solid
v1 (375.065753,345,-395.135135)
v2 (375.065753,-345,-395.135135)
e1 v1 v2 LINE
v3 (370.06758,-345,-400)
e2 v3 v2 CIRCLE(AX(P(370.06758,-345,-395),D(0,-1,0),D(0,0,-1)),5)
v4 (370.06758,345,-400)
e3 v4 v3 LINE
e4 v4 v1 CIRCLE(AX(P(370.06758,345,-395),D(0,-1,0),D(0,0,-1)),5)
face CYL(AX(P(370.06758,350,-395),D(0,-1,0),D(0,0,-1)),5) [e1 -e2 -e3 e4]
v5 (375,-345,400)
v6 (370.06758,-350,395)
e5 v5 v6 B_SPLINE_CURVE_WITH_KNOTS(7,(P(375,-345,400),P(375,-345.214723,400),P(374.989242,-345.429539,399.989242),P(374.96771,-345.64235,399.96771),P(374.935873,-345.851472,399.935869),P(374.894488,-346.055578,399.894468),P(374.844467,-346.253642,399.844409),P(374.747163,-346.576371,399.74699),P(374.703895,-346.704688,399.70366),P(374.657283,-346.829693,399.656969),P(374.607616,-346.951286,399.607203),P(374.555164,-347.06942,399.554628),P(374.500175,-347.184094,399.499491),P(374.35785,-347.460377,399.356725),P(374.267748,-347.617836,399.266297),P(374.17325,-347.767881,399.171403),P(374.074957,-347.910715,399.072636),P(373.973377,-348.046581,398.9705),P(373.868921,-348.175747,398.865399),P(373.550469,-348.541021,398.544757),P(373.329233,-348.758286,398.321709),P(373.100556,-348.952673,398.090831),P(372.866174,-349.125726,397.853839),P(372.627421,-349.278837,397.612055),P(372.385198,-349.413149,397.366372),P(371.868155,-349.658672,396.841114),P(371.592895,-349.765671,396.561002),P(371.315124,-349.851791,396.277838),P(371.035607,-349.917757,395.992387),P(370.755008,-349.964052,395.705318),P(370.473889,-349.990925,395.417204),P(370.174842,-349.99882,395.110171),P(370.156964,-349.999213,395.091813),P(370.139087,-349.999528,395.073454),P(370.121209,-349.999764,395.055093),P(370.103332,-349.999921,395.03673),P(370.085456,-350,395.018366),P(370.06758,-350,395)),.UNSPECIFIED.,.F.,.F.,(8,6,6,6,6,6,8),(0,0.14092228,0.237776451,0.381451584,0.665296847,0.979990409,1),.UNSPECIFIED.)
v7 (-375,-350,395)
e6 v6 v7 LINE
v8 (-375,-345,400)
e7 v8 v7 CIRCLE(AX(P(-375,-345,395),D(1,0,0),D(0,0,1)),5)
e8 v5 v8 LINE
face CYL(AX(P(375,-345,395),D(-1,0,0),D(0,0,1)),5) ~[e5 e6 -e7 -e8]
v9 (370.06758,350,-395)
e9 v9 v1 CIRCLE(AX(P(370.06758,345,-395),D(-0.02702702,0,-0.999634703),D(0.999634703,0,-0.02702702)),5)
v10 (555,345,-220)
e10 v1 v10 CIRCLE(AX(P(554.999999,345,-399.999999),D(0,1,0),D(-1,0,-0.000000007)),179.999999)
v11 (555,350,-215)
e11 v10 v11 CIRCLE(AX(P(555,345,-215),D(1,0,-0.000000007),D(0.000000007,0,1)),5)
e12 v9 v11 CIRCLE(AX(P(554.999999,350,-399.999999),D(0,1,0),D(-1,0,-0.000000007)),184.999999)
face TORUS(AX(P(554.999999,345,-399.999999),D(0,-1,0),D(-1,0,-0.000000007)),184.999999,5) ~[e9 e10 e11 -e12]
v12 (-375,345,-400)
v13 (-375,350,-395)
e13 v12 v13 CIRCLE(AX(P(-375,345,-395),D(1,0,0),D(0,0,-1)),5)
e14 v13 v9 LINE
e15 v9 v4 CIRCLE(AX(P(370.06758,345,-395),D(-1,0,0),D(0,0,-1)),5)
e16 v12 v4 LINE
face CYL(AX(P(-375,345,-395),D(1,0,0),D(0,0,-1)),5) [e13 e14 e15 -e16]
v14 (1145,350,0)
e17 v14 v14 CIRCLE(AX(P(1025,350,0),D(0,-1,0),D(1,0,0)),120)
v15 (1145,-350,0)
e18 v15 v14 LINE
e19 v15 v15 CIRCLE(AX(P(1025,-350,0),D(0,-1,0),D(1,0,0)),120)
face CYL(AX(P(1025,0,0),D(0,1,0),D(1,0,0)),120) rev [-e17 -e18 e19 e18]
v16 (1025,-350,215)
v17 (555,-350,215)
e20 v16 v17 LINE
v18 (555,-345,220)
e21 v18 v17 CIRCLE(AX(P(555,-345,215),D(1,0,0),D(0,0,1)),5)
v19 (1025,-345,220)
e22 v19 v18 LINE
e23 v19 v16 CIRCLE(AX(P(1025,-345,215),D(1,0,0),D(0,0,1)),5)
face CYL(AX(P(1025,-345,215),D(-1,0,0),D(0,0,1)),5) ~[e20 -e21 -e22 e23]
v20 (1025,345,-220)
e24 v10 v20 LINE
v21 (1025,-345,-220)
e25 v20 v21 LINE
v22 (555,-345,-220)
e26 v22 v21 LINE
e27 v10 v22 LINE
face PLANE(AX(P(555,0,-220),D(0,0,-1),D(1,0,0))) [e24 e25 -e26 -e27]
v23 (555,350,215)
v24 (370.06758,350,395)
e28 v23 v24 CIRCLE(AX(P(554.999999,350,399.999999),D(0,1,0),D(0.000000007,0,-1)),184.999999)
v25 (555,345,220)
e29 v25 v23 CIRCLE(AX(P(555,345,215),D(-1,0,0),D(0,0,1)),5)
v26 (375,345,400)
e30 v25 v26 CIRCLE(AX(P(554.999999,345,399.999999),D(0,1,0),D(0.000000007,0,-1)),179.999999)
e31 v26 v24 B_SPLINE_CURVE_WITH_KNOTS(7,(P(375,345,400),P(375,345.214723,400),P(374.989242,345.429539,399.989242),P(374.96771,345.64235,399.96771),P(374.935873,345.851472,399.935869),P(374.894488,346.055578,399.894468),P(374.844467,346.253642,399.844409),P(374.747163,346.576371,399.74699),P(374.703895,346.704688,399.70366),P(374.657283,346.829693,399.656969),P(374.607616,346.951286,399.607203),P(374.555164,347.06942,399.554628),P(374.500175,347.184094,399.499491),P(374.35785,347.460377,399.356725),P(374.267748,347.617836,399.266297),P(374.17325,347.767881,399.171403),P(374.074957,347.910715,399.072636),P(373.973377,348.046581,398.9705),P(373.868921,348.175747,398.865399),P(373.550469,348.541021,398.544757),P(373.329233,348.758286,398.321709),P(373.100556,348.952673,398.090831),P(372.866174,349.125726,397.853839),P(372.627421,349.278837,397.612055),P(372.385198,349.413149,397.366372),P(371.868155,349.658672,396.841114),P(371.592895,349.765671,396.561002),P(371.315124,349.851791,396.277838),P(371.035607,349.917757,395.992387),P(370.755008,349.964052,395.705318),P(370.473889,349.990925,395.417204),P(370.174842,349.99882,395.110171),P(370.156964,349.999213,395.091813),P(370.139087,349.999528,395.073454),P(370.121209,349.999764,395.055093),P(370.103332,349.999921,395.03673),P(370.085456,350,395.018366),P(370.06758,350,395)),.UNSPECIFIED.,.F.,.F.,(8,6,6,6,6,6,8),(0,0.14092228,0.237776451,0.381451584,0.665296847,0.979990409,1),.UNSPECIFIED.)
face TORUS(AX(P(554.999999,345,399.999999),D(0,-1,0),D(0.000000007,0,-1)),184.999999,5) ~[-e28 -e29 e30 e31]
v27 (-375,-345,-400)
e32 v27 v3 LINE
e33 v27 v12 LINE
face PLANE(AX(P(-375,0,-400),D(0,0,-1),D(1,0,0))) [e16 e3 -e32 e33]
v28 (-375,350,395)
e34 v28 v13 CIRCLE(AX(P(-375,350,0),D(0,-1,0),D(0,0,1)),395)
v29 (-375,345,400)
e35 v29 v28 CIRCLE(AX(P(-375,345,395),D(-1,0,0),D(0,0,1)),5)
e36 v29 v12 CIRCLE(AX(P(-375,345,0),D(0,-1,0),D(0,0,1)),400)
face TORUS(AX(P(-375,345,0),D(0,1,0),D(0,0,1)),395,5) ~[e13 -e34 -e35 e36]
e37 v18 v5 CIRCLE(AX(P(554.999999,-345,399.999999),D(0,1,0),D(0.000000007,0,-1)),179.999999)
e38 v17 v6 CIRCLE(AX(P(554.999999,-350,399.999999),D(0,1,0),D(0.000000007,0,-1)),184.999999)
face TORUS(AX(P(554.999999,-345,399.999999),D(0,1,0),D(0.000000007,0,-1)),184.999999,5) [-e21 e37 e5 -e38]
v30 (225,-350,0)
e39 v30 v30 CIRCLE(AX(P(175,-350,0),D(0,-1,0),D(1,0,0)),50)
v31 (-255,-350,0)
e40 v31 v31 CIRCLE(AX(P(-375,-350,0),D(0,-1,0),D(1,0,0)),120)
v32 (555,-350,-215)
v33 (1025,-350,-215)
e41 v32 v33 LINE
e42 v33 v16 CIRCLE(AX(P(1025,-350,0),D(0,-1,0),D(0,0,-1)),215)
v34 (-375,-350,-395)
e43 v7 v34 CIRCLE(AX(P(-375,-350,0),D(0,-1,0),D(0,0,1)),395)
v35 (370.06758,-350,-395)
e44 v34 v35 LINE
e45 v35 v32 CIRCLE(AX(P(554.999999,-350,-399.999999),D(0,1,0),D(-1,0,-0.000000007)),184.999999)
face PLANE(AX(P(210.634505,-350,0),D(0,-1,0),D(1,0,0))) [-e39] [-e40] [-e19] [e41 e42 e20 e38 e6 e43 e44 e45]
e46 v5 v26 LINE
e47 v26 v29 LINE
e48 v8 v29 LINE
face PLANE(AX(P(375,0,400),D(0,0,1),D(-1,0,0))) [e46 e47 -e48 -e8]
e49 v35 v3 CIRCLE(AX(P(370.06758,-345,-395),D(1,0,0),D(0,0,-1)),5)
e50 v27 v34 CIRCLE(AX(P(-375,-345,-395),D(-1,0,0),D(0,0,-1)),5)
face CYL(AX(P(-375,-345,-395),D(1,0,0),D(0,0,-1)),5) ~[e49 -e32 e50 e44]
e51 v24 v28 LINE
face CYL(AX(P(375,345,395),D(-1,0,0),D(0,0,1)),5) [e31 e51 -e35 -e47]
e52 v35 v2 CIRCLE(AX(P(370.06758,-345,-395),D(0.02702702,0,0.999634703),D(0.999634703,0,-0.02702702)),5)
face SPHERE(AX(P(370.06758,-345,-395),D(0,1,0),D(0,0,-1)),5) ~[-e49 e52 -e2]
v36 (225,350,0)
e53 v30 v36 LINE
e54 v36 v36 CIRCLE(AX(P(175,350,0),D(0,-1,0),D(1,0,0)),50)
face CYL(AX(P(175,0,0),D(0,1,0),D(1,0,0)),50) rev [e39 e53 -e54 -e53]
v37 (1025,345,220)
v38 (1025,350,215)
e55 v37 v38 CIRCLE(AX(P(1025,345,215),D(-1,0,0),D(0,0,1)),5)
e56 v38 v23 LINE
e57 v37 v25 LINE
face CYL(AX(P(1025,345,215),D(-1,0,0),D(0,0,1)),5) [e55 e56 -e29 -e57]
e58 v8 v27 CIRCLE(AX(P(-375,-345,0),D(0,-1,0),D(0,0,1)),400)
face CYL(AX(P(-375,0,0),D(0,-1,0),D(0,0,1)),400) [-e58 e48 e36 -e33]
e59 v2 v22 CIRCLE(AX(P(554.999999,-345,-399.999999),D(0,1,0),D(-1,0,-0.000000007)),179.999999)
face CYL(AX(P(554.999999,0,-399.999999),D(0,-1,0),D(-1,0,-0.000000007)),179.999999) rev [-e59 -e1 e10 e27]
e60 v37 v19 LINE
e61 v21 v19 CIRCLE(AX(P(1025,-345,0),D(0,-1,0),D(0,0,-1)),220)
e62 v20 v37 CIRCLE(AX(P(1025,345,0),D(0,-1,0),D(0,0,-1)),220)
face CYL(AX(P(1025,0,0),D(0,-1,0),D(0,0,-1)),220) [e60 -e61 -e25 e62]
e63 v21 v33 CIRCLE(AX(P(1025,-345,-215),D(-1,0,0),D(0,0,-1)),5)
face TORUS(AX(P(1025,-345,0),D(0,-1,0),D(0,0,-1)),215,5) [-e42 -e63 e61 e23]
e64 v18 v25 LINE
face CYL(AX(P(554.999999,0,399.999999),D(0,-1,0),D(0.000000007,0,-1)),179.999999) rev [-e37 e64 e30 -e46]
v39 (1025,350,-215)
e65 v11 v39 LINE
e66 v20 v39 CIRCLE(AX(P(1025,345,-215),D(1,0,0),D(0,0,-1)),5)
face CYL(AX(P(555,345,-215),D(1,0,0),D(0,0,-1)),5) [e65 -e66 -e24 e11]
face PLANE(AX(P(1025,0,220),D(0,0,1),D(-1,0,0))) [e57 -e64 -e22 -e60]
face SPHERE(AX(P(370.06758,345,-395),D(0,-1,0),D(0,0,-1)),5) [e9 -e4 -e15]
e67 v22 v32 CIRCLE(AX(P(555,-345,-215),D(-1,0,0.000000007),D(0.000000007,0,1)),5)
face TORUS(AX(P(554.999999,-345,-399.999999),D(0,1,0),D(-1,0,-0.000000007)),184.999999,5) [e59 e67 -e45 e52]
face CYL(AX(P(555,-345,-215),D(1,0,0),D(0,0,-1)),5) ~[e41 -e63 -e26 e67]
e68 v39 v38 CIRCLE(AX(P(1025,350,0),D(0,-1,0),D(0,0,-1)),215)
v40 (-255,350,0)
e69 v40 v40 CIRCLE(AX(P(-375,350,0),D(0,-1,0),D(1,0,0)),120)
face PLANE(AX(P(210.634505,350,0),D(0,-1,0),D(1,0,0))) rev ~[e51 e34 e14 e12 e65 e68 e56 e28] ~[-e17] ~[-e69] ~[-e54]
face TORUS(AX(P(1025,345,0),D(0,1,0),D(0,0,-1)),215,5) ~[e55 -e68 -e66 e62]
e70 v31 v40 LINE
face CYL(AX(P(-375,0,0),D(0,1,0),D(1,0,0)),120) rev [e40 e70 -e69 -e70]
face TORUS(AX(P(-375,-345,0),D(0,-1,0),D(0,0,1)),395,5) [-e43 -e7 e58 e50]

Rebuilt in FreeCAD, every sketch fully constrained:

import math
import FreeCAD as App
import Part
import Sketcher

V = App.Vector
Q = App.Units.Quantity


def edges_at(feature, points):
    """Names of the edges that pass closest to the given points."""
    edges = feature.Shape.Edges
    near = lambda p: min(range(len(edges)), key=lambda i: edges[i].distToShape(Part.Vertex(*p))[0])
    return sorted({f"Edge{near(p) + 1}" for p in points})

doc = App.newDocument("Part")
body = doc.addObject("PartDesign::Body", "Body")

sketch1 = doc.addObject("Sketcher::SketchObject", "Sketch")
body.addObject(sketch1)
sketch1.AttachmentSupport = (doc.XZ_Plane, [""])
sketch1.MapMode = "FlatFace"
sketch1.addGeometry([
    Part.LineSegment(V(-375, -400, 0), V(375, -400, 0)),
    Part.ArcOfCircle(Part.Circle(V(555, -400, 0), V(0, 0, 1), 180), math.radians(90), math.radians(180)),
    Part.LineSegment(V(555, -220, 0), V(1025, -220, 0)),
    Part.ArcOfCircle(Part.Circle(V(1025, 0, 0), V(0, 0, 1), 220), math.radians(-90), math.radians(90)),
    Part.LineSegment(V(1025, 220, 0), V(555, 220, 0)),
    Part.ArcOfCircle(Part.Circle(V(555, 400, 0), V(0, 0, 1), 180), math.radians(180), math.radians(270)),
    Part.LineSegment(V(375, 400, 0), V(-375, 400, 0)),
    Part.ArcOfCircle(Part.Circle(V(-375, 0, 0), V(0, 0, 1), 400), math.radians(90), math.radians(270)),
    Part.Circle(V(-375, 0, 0), V(0, 0, 1), 120),
    Part.Circle(V(175, 0, 0), V(0, 0, 1), 50),
    Part.Circle(V(1025, 0, 0), V(0, 0, 1), 120),
], False)
sketch1.addConstraint([
    Sketcher.Constraint("Coincident", 0, 2, 1, 2),
    Sketcher.Constraint("Tangent", 1, 1, 2, 1),
    Sketcher.Constraint("Tangent", 2, 2, 3, 1),
    Sketcher.Constraint("Tangent", 3, 2, 4, 1),
    Sketcher.Constraint("Tangent", 4, 2, 5, 2),
    Sketcher.Constraint("Coincident", 5, 1, 6, 1),
    Sketcher.Constraint("Tangent", 6, 2, 7, 1),
    Sketcher.Constraint("Tangent", 7, 2, 0, 1),
    Sketcher.Constraint("Horizontal", 0),
    Sketcher.Constraint("Horizontal", 2),
    Sketcher.Constraint("Horizontal", 4),
    Sketcher.Constraint("Horizontal", 6),
    Sketcher.Constraint("Coincident", 8, 3, 7, 3),
    Sketcher.Constraint("Coincident", 10, 3, 3, 3),
    Sketcher.Constraint("Equal", 1, 5),
    Sketcher.Constraint("Equal", 8, 10),
    Sketcher.Constraint("Symmetric", 0, 2, 6, 2, -1, 1),
    Sketcher.Constraint("Symmetric", 1, 3, 5, 3, -1),
    Sketcher.Constraint("PointOnObject", 9, 3, -1),
    Sketcher.Constraint("Horizontal", 1, 3, 0, 2),
    Sketcher.Constraint("Diameter", 8, Q("240 mm")),
    Sketcher.Constraint("Diameter", 9, Q("100 mm")),
    Sketcher.Constraint("Radius", 1, Q("179.999999 mm")),
    Sketcher.Constraint("Radius", 3, Q("220 mm")),
    Sketcher.Constraint("DistanceX", 0, 1, 0, 2, Q("750 mm")),
    Sketcher.Constraint("DistanceX", 2, 1, 2, 2, Q("470 mm")),
    Sketcher.Constraint("DistanceX", -1, 1, 9, 3, Q("175 mm")),
])
pad1 = doc.addObject("PartDesign::Pad", "Pad")
body.addObject(pad1)
pad1.Profile = sketch1
pad1.Length = 700
pad1.Midplane = True
doc.recompute()

fillet = doc.addObject("PartDesign::Fillet", "Fillet")
body.addObject(fillet)
fillet.Base = (pad1, edges_at(pad1, [
    (-775, -350, 0),
    (0, -350, 400),
    (427.721, -350, 272.721),
    (790, -350, 220),
    (1245, -350, 0),
    (790, -350, -220),
    (427.721, -350, -272.721),
    (0, -350, -400),
    (-775, 350, 0),
    (0, 350, 400),
    (427.721, 350, 272.721),
    (790, 350, 220),
    (1245, 350, 0),
    (375, 0, -400),
    (790, 350, -220),
    (427.721, 350, -272.721),
    (0, 350, -400),
]))
fillet.Radius = 5

doc.recompute()
